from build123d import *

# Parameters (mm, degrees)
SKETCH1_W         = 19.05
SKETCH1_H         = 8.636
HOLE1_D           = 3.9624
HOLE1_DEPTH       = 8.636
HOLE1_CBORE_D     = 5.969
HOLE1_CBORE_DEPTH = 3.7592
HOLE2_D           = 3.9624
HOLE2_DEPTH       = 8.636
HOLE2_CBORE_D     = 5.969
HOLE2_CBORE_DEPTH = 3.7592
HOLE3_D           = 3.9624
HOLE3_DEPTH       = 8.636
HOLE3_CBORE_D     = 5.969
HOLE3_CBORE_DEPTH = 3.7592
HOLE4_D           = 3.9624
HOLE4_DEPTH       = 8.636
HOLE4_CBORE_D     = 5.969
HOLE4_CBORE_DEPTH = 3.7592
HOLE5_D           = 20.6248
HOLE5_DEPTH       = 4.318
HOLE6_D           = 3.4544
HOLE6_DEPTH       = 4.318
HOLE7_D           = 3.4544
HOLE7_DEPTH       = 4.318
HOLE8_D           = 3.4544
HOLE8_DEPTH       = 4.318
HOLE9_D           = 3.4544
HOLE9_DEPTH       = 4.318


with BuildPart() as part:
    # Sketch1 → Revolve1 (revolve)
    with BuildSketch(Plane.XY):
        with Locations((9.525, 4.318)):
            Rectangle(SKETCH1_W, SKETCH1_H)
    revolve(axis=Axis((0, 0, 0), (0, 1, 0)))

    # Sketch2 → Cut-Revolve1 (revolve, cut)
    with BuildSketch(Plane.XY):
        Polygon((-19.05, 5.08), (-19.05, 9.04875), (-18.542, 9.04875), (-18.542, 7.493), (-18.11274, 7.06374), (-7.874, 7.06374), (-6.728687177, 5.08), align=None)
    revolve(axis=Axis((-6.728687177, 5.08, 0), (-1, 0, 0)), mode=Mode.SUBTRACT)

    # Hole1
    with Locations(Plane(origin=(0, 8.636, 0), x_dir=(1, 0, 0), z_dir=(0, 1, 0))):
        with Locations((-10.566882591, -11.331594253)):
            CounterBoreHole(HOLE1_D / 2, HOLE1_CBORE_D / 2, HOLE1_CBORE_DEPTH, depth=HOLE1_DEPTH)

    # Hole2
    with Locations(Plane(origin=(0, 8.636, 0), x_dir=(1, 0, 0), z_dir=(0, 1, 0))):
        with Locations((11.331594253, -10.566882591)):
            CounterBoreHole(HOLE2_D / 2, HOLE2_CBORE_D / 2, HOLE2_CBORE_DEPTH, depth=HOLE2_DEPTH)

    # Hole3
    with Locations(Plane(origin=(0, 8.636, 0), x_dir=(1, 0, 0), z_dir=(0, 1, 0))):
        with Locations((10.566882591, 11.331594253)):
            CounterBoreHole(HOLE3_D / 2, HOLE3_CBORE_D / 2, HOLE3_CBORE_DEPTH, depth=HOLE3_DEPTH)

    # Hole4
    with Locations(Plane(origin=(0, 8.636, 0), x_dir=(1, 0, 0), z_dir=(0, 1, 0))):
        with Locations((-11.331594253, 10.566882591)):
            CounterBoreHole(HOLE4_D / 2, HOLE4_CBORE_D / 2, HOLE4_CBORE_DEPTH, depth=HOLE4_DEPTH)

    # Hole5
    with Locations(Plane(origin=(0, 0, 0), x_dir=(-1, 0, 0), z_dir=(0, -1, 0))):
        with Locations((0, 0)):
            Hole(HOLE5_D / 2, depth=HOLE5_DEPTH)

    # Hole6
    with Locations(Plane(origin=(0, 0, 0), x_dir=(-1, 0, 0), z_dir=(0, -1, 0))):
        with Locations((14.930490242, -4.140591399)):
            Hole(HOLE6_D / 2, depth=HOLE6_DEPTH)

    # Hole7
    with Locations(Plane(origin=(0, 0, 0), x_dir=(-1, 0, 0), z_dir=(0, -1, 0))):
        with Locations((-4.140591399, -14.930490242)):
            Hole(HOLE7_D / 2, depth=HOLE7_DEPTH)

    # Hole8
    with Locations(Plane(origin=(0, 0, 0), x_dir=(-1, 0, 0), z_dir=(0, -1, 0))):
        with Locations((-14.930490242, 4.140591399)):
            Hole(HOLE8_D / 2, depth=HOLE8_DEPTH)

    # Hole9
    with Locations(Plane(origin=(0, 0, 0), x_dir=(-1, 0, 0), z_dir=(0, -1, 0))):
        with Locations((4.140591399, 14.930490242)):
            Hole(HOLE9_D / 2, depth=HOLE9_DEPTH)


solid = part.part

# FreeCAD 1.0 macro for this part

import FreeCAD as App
import Part
import Sketcher
Q = App.Units.Quantity

doc = App.newDocument("Part")
params = doc.addObject("Spreadsheet::Sheet", "Params")
for row, (alias, value) in enumerate([
    ("sketch1_width", "0.75 in"),
    ("sketch1_height", "0.34 in"),
    ("revolution_angle", "360 deg"),
    ("sketch2_width", "0.02 in"),
    ("sketch2_height", "0.15625 in"),
    ("groove_angle", "360 deg"),
    ("sketch3_diameter", "0.156 in"),
    ("hole_diameter", "0.156 in"),
    ("hole_depth", "0.34 in"),
    ("hole_cbore_diameter", "0.235 in"),
    ("hole_cbore_depth", "0.148 in"),
    ("sketch4_diameter", "0.156 in"),
    ("hole2_diameter", "0.156 in"),
    ("hole2_depth", "0.34 in"),
    ("hole2_cbore_diameter", "0.235 in"),
    ("hole2_cbore_depth", "0.148 in"),
    ("sketch5_diameter", "0.156 in"),
    ("hole3_diameter", "0.156 in"),
    ("hole3_depth", "0.34 in"),
    ("hole3_cbore_diameter", "0.235 in"),
    ("hole3_cbore_depth", "0.148 in"),
    ("sketch6_diameter", "0.156 in"),
    ("hole4_diameter", "0.156 in"),
    ("hole4_depth", "0.34 in"),
    ("hole4_cbore_diameter", "0.235 in"),
    ("hole4_cbore_depth", "0.148 in"),
    ("sketch7_diameter", "0.812 in"),
    ("hole5_diameter", "0.812 in"),
    ("hole5_depth", "0.17 in"),
    ("sketch8_diameter", "0.136 in"),
    ("hole6_diameter", "0.136 in"),
    ("hole6_depth", "0.17 in"),
    ("sketch9_diameter", "0.136 in"),
    ("hole7_diameter", "0.136 in"),
    ("hole7_depth", "0.17 in"),
    ("sketch10_diameter", "0.136 in"),
    ("hole8_diameter", "0.136 in"),
    ("hole8_depth", "0.17 in"),
    ("sketch11_diameter", "0.136 in"),
    ("hole9_diameter", "0.136 in"),
    ("hole9_depth", "0.17 in"),
], start=1):
    params.set(f"A{row}", alias)
    params.set(f"B{row}", "=" + value)
    params.setAlias(f"B{row}", alias)

body = doc.addObject("PartDesign::Body", "Body")

sketch1 = body.newObject("Sketcher::SketchObject", "Sketch")
sketch1.AttachmentSupport = (doc.getObject("XY_Plane"), [""])
sketch1.MapMode = "FlatFace"
sketch1.addGeometry([
    Part.LineSegment(App.Vector(0, 9, 0), App.Vector(0, 0, 0)),
    Part.LineSegment(App.Vector(0, 0, 0), App.Vector(19, 0, 0)),
    Part.LineSegment(App.Vector(19, 0, 0), App.Vector(19, 9, 0)),
    Part.LineSegment(App.Vector(19, 9, 0), App.Vector(0, 9, 0)),
], False)
sketch1.addConstraint([
    Sketcher.Constraint("Coincident", 0, 2, 1, 1),
    Sketcher.Constraint("Coincident", 1, 2, 2, 1),
    Sketcher.Constraint("Coincident", 2, 2, 3, 1),
    Sketcher.Constraint("Coincident", 3, 2, 0, 1),
    Sketcher.Constraint("Vertical", 0),
    Sketcher.Constraint("Horizontal", 1),
    Sketcher.Constraint("Vertical", 2),
    Sketcher.Constraint("Horizontal", 3),
    Sketcher.Constraint("Coincident", 0, 2, -1, 1),
    Sketcher.Constraint("DistanceX", 1, 1, 1, 2, Q("0.75 in")),
    Sketcher.Constraint("DistanceY", 0, 2, 0, 1, Q("0.34 in")),
])
sketch1.setExpression("Constraints[9]", "Params.sketch1_width")
sketch1.setExpression("Constraints[10]", "Params.sketch1_height")
revolution = body.newObject("PartDesign::Revolution", "Revolution")
revolution.Profile = sketch1
revolution.ReferenceAxis = (sketch1, ["V_Axis"])
revolution.setExpression("Angle", "Params.revolution_angle")

sketch2 = body.newObject("Sketcher::SketchObject", "Sketch001")
sketch2.AttachmentSupport = (doc.getObject("XY_Plane"), [""])
sketch2.MapMode = "FlatFace"
sketch2.addGeometry([
    Part.LineSegment(App.Vector(-19.1, 9, 0), App.Vector(-19.1, 5.1, 0)),
    Part.LineSegment(App.Vector(-19.1, 5.1, 0), App.Vector(-6.7, 5.1, 0)),
    Part.LineSegment(App.Vector(-6.7, 5.1, 0), App.Vector(-7.9, 7.1, 0)),
    Part.LineSegment(App.Vector(-7.9, 7.1, 0), App.Vector(-18.1, 7.1, 0)),
    Part.LineSegment(App.Vector(-18.1, 7.1, 0), App.Vector(-18.5, 7.5, 0)),
    Part.LineSegment(App.Vector(-18.5, 7.5, 0), App.Vector(-18.5, 9, 0)),
    Part.LineSegment(App.Vector(-18.5, 9, 0), App.Vector(-19.1, 9, 0)),
], False)
sketch2.addGeometry(Part.LineSegment(App.Vector(-6.7, 5.1, 0), App.Vector(-19.1, 5.1, 0)), True)
sketch2.addConstraint([
    Sketcher.Constraint("Coincident", 0, 2, 1, 1),
    Sketcher.Constraint("Coincident", 1, 2, 2, 1),
    Sketcher.Constraint("Coincident", 2, 2, 3, 1),
    Sketcher.Constraint("Coincident", 3, 2, 4, 1),
    Sketcher.Constraint("Coincident", 4, 2, 5, 1),
    Sketcher.Constraint("Coincident", 5, 2, 6, 1),
    Sketcher.Constraint("Coincident", 6, 2, 0, 1),
    Sketcher.Constraint("Vertical", 0),
    Sketcher.Constraint("Horizontal", 1),
    Sketcher.Constraint("Horizontal", 3),
    Sketcher.Constraint("Vertical", 5),
    Sketcher.Constraint("Horizontal", 6),
    Sketcher.Constraint("Horizontal", 7),
    Sketcher.Constraint("Coincident", 7, 1, 1, 2),
    Sketcher.Constraint("Vertical", 6, 2, 7, 2),
    Sketcher.Constraint("Angle", 2, Q("120 deg")),
    Sketcher.Constraint("Angle", 4, Q("135 deg")),
    Sketcher.Constraint("DistanceX", 6, 2, 6, 1, Q("0.02 in")),
    Sketcher.Constraint("DistanceY", -1, 1, 0, 2, Q("0.2 in")),
    Sketcher.Constraint("DistanceY", 0, 2, 0, 1, Q("0.15625 in")),
    Sketcher.Constraint("DistanceX", 0, 2, -1, 1, Q("0.75 in")),
    Sketcher.Constraint("DistanceX", 2, 2, -1, 1, Q("0.31 in")),
    Sketcher.Constraint("DistanceX", 3, 2, 3, 1, Q("0.4031 in")),
    Sketcher.Constraint("DistanceY", -1, 1, 4, 2, Q("0.295 in")),
])
sketch2.setExpression("Constraints[17]", "Params.sketch2_width")
sketch2.setExpression("Constraints[19]", "Params.sketch2_height")
groove = body.newObject("PartDesign::Groove", "Groove")
groove.Profile = sketch2
groove.ReferenceAxis = (sketch2, ["Axis0"])
groove.setExpression("Angle", "Params.groove_angle")

sketch3 = body.newObject("Sketcher::SketchObject", "Sketch002")
sketch3.AttachmentSupport = (doc.getObject("XZ_Plane"), [""])
sketch3.MapMode = "FlatFace"
sketch3.AttachmentOffset = App.Placement(App.Vector(0, 0, -0.34 * 25.4), App.Rotation())
sketch3.addGeometry(Part.Circle(App.Vector(-10.6, 11.3, 0), App.Vector(0, 0, 1), 2), False)
sketch3.addConstraint([
    Sketcher.Constraint("Diameter", 0, Q("0.156 in")),
    Sketcher.Constraint("DistanceX", 0, 3, -1, 1, 10.566883),
    Sketcher.Constraint("DistanceY", -1, 1, 0, 3, 11.331594),
])
sketch3.setExpression("Constraints[0]", "Params.sketch3_diameter")
doc.recompute()
hole = body.newObject("PartDesign::Hole", "Hole")
hole.Profile = sketch3
hole.ThreadType = "None"
hole.setExpression("Diameter", "Params.hole_diameter")
hole.DepthType = "Dimension"
hole.setExpression("Depth", "Params.hole_depth")
hole.DrillPoint = "Flat"
hole.HoleCutType = "Counterbore"
hole.setExpression("HoleCutDiameter", "Params.hole_cbore_diameter")
hole.setExpression("HoleCutDepth", "Params.hole_cbore_depth")
hole.Reversed = True

sketch4 = body.newObject("Sketcher::SketchObject", "Sketch003")
sketch4.AttachmentSupport = (doc.getObject("XZ_Plane"), [""])
sketch4.MapMode = "FlatFace"
sketch4.AttachmentOffset = App.Placement(App.Vector(0, 0, -0.34 * 25.4), App.Rotation())
sketch4.addGeometry(Part.Circle(App.Vector(11.3, 10.6, 0), App.Vector(0, 0, 1), 2), False)
sketch4.addConstraint([
    Sketcher.Constraint("Diameter", 0, Q("0.156 in")),
    Sketcher.Constraint("DistanceX", -1, 1, 0, 3, 11.331594),
    Sketcher.Constraint("DistanceY", -1, 1, 0, 3, 10.566883),
])
sketch4.setExpression("Constraints[0]", "Params.sketch4_diameter")
doc.recompute()
hole2 = body.newObject("PartDesign::Hole", "Hole001")
hole2.Profile = sketch4
hole2.ThreadType = "None"
hole2.setExpression("Diameter", "Params.hole2_diameter")
hole2.DepthType = "Dimension"
hole2.setExpression("Depth", "Params.hole2_depth")
hole2.DrillPoint = "Flat"
hole2.HoleCutType = "Counterbore"
hole2.setExpression("HoleCutDiameter", "Params.hole2_cbore_diameter")
hole2.setExpression("HoleCutDepth", "Params.hole2_cbore_depth")
hole2.Reversed = True

sketch5 = body.newObject("Sketcher::SketchObject", "Sketch004")
sketch5.AttachmentSupport = (doc.getObject("XZ_Plane"), [""])
sketch5.MapMode = "FlatFace"
sketch5.AttachmentOffset = App.Placement(App.Vector(0, 0, -0.34 * 25.4), App.Rotation())
sketch5.addGeometry(Part.Circle(App.Vector(10.6, -11.3, 0), App.Vector(0, 0, 1), 2), False)
sketch5.addConstraint([
    Sketcher.Constraint("Diameter", 0, Q("0.156 in")),
    Sketcher.Constraint("DistanceX", -1, 1, 0, 3, 10.566883),
    Sketcher.Constraint("DistanceY", 0, 3, -1, 1, 11.331594),
])
sketch5.setExpression("Constraints[0]", "Params.sketch5_diameter")
doc.recompute()
hole3 = body.newObject("PartDesign::Hole", "Hole002")
hole3.Profile = sketch5
hole3.ThreadType = "None"
hole3.setExpression("Diameter", "Params.hole3_diameter")
hole3.DepthType = "Dimension"
hole3.setExpression("Depth", "Params.hole3_depth")
hole3.DrillPoint = "Flat"
hole3.HoleCutType = "Counterbore"
hole3.setExpression("HoleCutDiameter", "Params.hole3_cbore_diameter")
hole3.setExpression("HoleCutDepth", "Params.hole3_cbore_depth")
hole3.Reversed = True

sketch6 = body.newObject("Sketcher::SketchObject", "Sketch005")
sketch6.AttachmentSupport = (doc.getObject("XZ_Plane"), [""])
sketch6.MapMode = "FlatFace"
sketch6.AttachmentOffset = App.Placement(App.Vector(0, 0, -0.34 * 25.4), App.Rotation())
sketch6.addGeometry(Part.Circle(App.Vector(-11.3, -10.6, 0), App.Vector(0, 0, 1), 2), False)
sketch6.addConstraint([
    Sketcher.Constraint("Diameter", 0, Q("0.156 in")),
    Sketcher.Constraint("DistanceX", 0, 3, -1, 1, 11.331594),
    Sketcher.Constraint("DistanceY", 0, 3, -1, 1, 10.566883),
])
sketch6.setExpression("Constraints[0]", "Params.sketch6_diameter")
doc.recompute()
hole4 = body.newObject("PartDesign::Hole", "Hole003")
hole4.Profile = sketch6
hole4.ThreadType = "None"
hole4.setExpression("Diameter", "Params.hole4_diameter")
hole4.DepthType = "Dimension"
hole4.setExpression("Depth", "Params.hole4_depth")
hole4.DrillPoint = "Flat"
hole4.HoleCutType = "Counterbore"
hole4.setExpression("HoleCutDiameter", "Params.hole4_cbore_diameter")
hole4.setExpression("HoleCutDepth", "Params.hole4_cbore_depth")
hole4.Reversed = True

sketch7 = body.newObject("Sketcher::SketchObject", "Sketch006")
sketch7.AttachmentSupport = (doc.getObject("XZ_Plane"), [""])
sketch7.MapMode = "FlatFace"
sketch7.addGeometry(Part.Circle(App.Vector(0, 0, 0), App.Vector(0, 0, 1), 10), False)
sketch7.addConstraint([
    Sketcher.Constraint("Coincident", 0, 3, -1, 1),
    Sketcher.Constraint("Diameter", 0, Q("0.812 in")),
])
sketch7.setExpression("Constraints[1]", "Params.sketch7_diameter")
doc.recompute()
hole5 = body.newObject("PartDesign::Hole", "Hole004")
hole5.Profile = sketch7
hole5.ThreadType = "None"
hole5.setExpression("Diameter", "Params.hole5_diameter")
hole5.DepthType = "Dimension"
hole5.setExpression("Depth", "Params.hole5_depth")
hole5.DrillPoint = "Flat"

sketch8 = body.newObject("Sketcher::SketchObject", "Sketch007")
sketch8.AttachmentSupport = (doc.getObject("XZ_Plane"), [""])
sketch8.MapMode = "FlatFace"
sketch8.addGeometry(Part.Circle(App.Vector(-14.9, 4.1, 0), App.Vector(0, 0, 1), 1.7), False)
sketch8.addConstraint([
    Sketcher.Constraint("Diameter", 0, Q("0.136 in")),
    Sketcher.Constraint("DistanceX", 0, 3, -1, 1, 14.93049),
    Sketcher.Constraint("DistanceY", -1, 1, 0, 3, 4.140591),
])
sketch8.setExpression("Constraints[0]", "Params.sketch8_diameter")
doc.recompute()
hole6 = body.newObject("PartDesign::Hole", "Hole005")
hole6.Profile = sketch8
hole6.ThreadType = "None"
hole6.setExpression("Diameter", "Params.hole6_diameter")
hole6.DepthType = "Dimension"
hole6.setExpression("Depth", "Params.hole6_depth")
hole6.DrillPoint = "Flat"

sketch9 = body.newObject("Sketcher::SketchObject", "Sketch008")
sketch9.AttachmentSupport = (doc.getObject("XZ_Plane"), [""])
sketch9.MapMode = "FlatFace"
sketch9.addGeometry(Part.Circle(App.Vector(4.1, 14.9, 0), App.Vector(0, 0, 1), 1.7), False)
sketch9.addConstraint([
    Sketcher.Constraint("Diameter", 0, Q("0.136 in")),
    Sketcher.Constraint("DistanceX", -1, 1, 0, 3, 4.140591),
    Sketcher.Constraint("DistanceY", -1, 1, 0, 3, 14.93049),
])
sketch9.setExpression("Constraints[0]", "Params.sketch9_diameter")
doc.recompute()
hole7 = body.newObject("PartDesign::Hole", "Hole006")
hole7.Profile = sketch9
hole7.ThreadType = "None"
hole7.setExpression("Diameter", "Params.hole7_diameter")
hole7.DepthType = "Dimension"
hole7.setExpression("Depth", "Params.hole7_depth")
hole7.DrillPoint = "Flat"

sketch10 = body.newObject("Sketcher::SketchObject", "Sketch009")
sketch10.AttachmentSupport = (doc.getObject("XZ_Plane"), [""])
sketch10.MapMode = "FlatFace"
sketch10.addGeometry(Part.Circle(App.Vector(14.9, -4.1, 0), App.Vector(0, 0, 1), 1.7), False)
sketch10.addConstraint([
    Sketcher.Constraint("Diameter", 0, Q("0.136 in")),
    Sketcher.Constraint("DistanceX", -1, 1, 0, 3, 14.93049),
    Sketcher.Constraint("DistanceY", 0, 3, -1, 1, 4.140591),
])
sketch10.setExpression("Constraints[0]", "Params.sketch10_diameter")
doc.recompute()
hole8 = body.newObject("PartDesign::Hole", "Hole007")
hole8.Profile = sketch10
hole8.ThreadType = "None"
hole8.setExpression("Diameter", "Params.hole8_diameter")
hole8.DepthType = "Dimension"
hole8.setExpression("Depth", "Params.hole8_depth")
hole8.DrillPoint = "Flat"

sketch11 = body.newObject("Sketcher::SketchObject", "Sketch010")
sketch11.AttachmentSupport = (doc.getObject("XZ_Plane"), [""])
sketch11.MapMode = "FlatFace"
sketch11.addGeometry(Part.Circle(App.Vector(-4.1, -14.9, 0), App.Vector(0, 0, 1), 1.7), False)
sketch11.addConstraint([
    Sketcher.Constraint("Diameter", 0, Q("0.136 in")),
    Sketcher.Constraint("DistanceX", 0, 3, -1, 1, 4.140591),
    Sketcher.Constraint("DistanceY", 0, 3, -1, 1, 14.93049),
])
sketch11.setExpression("Constraints[0]", "Params.sketch11_diameter")
doc.recompute()
hole9 = body.newObject("PartDesign::Hole", "Hole008")
hole9.Profile = sketch11
hole9.ThreadType = "None"
hole9.setExpression("Diameter", "Params.hole9_diameter")
hole9.DepthType = "Dimension"
hole9.setExpression("Depth", "Params.hole9_depth")
hole9.DrillPoint = "Flat"

doc.recompute()
